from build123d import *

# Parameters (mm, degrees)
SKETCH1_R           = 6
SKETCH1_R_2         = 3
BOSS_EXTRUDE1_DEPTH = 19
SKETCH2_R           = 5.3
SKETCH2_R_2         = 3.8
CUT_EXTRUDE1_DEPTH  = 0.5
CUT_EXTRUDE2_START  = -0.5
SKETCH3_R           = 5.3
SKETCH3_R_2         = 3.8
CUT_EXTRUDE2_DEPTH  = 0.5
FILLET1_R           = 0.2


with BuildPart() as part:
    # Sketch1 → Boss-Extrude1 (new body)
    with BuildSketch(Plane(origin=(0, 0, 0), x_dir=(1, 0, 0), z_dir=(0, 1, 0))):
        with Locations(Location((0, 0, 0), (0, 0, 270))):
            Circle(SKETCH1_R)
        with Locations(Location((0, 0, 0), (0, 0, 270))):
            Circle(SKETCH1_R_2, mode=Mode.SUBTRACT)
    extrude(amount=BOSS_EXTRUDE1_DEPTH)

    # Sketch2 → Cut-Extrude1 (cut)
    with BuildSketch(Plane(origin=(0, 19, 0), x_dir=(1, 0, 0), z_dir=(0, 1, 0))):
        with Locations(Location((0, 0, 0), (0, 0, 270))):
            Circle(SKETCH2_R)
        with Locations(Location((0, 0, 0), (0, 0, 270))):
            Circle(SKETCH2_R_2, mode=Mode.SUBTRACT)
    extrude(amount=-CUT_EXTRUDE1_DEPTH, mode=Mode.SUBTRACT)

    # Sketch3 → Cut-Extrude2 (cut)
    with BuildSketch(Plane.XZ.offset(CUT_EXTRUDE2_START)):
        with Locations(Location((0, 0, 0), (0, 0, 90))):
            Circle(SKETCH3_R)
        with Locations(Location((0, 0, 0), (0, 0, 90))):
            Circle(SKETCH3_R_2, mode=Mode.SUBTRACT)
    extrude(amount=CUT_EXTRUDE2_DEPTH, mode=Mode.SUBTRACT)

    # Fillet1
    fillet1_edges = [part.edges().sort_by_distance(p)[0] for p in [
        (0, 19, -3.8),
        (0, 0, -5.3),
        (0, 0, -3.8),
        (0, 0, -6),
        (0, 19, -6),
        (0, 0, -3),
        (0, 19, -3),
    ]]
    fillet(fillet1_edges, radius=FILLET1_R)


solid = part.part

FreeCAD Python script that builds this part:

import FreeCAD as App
import Part
import Sketcher


def edges_at(feature, points):
    """Names of the edges that pass closest to the given points."""
    edges = feature.Shape.Edges
    near = lambda p: min(range(len(edges)), key=lambda i: edges[i].distToShape(Part.Vertex(*p))[0])
    return sorted({f"Edge{near(p) + 1}" for p in points})

doc = App.newDocument("Part")
params = doc.addObject("Spreadsheet::Sheet", "Params")
for row, (alias, value) in enumerate([
    ("sketch1_diameter", "12 mm"),
    ("sketch1_diameter2", "6 mm"),
    ("pad1_length", "19 mm"),
    ("sketch2_diameter", "10.6 mm"),
    ("sketch2_diameter2", "7.6 mm"),
    ("pocket1_length", "0.5 mm"),
    ("sketch3_diameter", "10.6 mm"),
    ("sketch3_diameter2", "7.6 mm"),
    ("pocket2_length", "0.5 mm"),
    ("fillet_radius", "0.2 mm"),
], start=1):
    params.set(f"A{row}", alias)
    params.set(f"B{row}", "=" + value)
    params.setAlias(f"B{row}", alias)

body = doc.addObject("PartDesign::Body", "Body")

# Sketch on XZ plane
sketch1 = doc.addObject("Sketcher::SketchObject", "Sketch")
body.addObject(sketch1)
sketch1.AttachmentSupport = (doc.XZ_Plane, [""])
sketch1.MapMode = "FlatFace"
sketch1.addGeometry(Part.Circle(App.Vector(0, 0, 0), App.Vector(0, 0, 1), 6), False)
sketch1.addGeometry(Part.Circle(App.Vector(0, 0, 0), App.Vector(0, 0, 1), 3), False)
sketch1.addConstraint(Sketcher.Constraint("Coincident", 0, 3, -1, 1))
sketch1.addConstraint(Sketcher.Constraint("Coincident", 1, 3, -1, 1))
sketch1.addConstraint(Sketcher.Constraint("Diameter", 0, 12.0))
sketch1.addConstraint(Sketcher.Constraint("Diameter", 1, 6.0))
sketch1.setExpression("Constraints[2]", "Params.sketch1_diameter")
sketch1.setExpression("Constraints[3]", "Params.sketch1_diameter2")
pad1 = doc.addObject("PartDesign::Pad", "Pad")
body.addObject(pad1)
pad1.Profile = sketch1
pad1.setExpression("Length", "Params.pad1_length")
pad1.Reversed = True

# Sketch on XZ plane
sketch2 = doc.addObject("Sketcher::SketchObject", "Sketch001")
body.addObject(sketch2)
sketch2.AttachmentSupport = (doc.XZ_Plane, [""])
sketch2.MapMode = "FlatFace"
sketch2.AttachmentOffset = App.Placement(App.Vector(0, 0, -19), App.Rotation())
sketch2.addGeometry(Part.Circle(App.Vector(0, 0, 0), App.Vector(0, 0, 1), 5.3), False)
sketch2.addGeometry(Part.Circle(App.Vector(0, 0, 0), App.Vector(0, 0, 1), 3.8), False)
sketch2.addConstraint(Sketcher.Constraint("Coincident", 0, 3, -1, 1))
sketch2.addConstraint(Sketcher.Constraint("Coincident", 1, 3, -1, 1))
sketch2.addConstraint(Sketcher.Constraint("Diameter", 0, 10.6))
sketch2.addConstraint(Sketcher.Constraint("Diameter", 1, 7.6))
sketch2.setExpression("Constraints[2]", "Params.sketch2_diameter")
sketch2.setExpression("Constraints[3]", "Params.sketch2_diameter2")
pocket1 = doc.addObject("PartDesign::Pocket", "Pocket")
body.addObject(pocket1)
pocket1.Profile = sketch2
pocket1.setExpression("Length", "Params.pocket1_length")
pocket1.Reversed = True

# Sketch on XZ plane
sketch3 = doc.addObject("Sketcher::SketchObject", "Sketch002")
body.addObject(sketch3)
sketch3.AttachmentSupport = (doc.XZ_Plane, [""])
sketch3.MapMode = "FlatFace"
sketch3.AttachmentOffset = App.Placement(App.Vector(0, 0, -0.5), App.Rotation())
sketch3.addGeometry(Part.Circle(App.Vector(0, 0, 0), App.Vector(0, 0, 1), 5.3), False)
sketch3.addGeometry(Part.Circle(App.Vector(0, 0, 0), App.Vector(0, 0, 1), 3.8), False)
sketch3.addConstraint(Sketcher.Constraint("Coincident", 0, 3, -1, 1))
sketch3.addConstraint(Sketcher.Constraint("Coincident", 1, 3, -1, 1))
sketch3.addConstraint(Sketcher.Constraint("Diameter", 0, 10.6))
sketch3.addConstraint(Sketcher.Constraint("Diameter", 1, 7.6))
sketch3.setExpression("Constraints[2]", "Params.sketch3_diameter")
sketch3.setExpression("Constraints[3]", "Params.sketch3_diameter2")
pocket2 = doc.addObject("PartDesign::Pocket", "Pocket001")
body.addObject(pocket2)
pocket2.Profile = sketch3
pocket2.setExpression("Length", "Params.pocket2_length")
pocket2.Reversed = True
doc.recompute()

fillet = doc.addObject("PartDesign::Fillet", "Fillet")
body.addObject(fillet)
fillet.Base = (pocket2, edges_at(pocket2, [
    (0, 19, -3.8),
    (0, 0, -5.3),
    (0, 0, -3.8),
    (0, 0, -6),
    (0, 19, -6),
    (0, 0, -3),
    (0, 19, -3),
]))
fillet.setExpression("Radius", "Params.fillet_radius")

doc.recompute()
